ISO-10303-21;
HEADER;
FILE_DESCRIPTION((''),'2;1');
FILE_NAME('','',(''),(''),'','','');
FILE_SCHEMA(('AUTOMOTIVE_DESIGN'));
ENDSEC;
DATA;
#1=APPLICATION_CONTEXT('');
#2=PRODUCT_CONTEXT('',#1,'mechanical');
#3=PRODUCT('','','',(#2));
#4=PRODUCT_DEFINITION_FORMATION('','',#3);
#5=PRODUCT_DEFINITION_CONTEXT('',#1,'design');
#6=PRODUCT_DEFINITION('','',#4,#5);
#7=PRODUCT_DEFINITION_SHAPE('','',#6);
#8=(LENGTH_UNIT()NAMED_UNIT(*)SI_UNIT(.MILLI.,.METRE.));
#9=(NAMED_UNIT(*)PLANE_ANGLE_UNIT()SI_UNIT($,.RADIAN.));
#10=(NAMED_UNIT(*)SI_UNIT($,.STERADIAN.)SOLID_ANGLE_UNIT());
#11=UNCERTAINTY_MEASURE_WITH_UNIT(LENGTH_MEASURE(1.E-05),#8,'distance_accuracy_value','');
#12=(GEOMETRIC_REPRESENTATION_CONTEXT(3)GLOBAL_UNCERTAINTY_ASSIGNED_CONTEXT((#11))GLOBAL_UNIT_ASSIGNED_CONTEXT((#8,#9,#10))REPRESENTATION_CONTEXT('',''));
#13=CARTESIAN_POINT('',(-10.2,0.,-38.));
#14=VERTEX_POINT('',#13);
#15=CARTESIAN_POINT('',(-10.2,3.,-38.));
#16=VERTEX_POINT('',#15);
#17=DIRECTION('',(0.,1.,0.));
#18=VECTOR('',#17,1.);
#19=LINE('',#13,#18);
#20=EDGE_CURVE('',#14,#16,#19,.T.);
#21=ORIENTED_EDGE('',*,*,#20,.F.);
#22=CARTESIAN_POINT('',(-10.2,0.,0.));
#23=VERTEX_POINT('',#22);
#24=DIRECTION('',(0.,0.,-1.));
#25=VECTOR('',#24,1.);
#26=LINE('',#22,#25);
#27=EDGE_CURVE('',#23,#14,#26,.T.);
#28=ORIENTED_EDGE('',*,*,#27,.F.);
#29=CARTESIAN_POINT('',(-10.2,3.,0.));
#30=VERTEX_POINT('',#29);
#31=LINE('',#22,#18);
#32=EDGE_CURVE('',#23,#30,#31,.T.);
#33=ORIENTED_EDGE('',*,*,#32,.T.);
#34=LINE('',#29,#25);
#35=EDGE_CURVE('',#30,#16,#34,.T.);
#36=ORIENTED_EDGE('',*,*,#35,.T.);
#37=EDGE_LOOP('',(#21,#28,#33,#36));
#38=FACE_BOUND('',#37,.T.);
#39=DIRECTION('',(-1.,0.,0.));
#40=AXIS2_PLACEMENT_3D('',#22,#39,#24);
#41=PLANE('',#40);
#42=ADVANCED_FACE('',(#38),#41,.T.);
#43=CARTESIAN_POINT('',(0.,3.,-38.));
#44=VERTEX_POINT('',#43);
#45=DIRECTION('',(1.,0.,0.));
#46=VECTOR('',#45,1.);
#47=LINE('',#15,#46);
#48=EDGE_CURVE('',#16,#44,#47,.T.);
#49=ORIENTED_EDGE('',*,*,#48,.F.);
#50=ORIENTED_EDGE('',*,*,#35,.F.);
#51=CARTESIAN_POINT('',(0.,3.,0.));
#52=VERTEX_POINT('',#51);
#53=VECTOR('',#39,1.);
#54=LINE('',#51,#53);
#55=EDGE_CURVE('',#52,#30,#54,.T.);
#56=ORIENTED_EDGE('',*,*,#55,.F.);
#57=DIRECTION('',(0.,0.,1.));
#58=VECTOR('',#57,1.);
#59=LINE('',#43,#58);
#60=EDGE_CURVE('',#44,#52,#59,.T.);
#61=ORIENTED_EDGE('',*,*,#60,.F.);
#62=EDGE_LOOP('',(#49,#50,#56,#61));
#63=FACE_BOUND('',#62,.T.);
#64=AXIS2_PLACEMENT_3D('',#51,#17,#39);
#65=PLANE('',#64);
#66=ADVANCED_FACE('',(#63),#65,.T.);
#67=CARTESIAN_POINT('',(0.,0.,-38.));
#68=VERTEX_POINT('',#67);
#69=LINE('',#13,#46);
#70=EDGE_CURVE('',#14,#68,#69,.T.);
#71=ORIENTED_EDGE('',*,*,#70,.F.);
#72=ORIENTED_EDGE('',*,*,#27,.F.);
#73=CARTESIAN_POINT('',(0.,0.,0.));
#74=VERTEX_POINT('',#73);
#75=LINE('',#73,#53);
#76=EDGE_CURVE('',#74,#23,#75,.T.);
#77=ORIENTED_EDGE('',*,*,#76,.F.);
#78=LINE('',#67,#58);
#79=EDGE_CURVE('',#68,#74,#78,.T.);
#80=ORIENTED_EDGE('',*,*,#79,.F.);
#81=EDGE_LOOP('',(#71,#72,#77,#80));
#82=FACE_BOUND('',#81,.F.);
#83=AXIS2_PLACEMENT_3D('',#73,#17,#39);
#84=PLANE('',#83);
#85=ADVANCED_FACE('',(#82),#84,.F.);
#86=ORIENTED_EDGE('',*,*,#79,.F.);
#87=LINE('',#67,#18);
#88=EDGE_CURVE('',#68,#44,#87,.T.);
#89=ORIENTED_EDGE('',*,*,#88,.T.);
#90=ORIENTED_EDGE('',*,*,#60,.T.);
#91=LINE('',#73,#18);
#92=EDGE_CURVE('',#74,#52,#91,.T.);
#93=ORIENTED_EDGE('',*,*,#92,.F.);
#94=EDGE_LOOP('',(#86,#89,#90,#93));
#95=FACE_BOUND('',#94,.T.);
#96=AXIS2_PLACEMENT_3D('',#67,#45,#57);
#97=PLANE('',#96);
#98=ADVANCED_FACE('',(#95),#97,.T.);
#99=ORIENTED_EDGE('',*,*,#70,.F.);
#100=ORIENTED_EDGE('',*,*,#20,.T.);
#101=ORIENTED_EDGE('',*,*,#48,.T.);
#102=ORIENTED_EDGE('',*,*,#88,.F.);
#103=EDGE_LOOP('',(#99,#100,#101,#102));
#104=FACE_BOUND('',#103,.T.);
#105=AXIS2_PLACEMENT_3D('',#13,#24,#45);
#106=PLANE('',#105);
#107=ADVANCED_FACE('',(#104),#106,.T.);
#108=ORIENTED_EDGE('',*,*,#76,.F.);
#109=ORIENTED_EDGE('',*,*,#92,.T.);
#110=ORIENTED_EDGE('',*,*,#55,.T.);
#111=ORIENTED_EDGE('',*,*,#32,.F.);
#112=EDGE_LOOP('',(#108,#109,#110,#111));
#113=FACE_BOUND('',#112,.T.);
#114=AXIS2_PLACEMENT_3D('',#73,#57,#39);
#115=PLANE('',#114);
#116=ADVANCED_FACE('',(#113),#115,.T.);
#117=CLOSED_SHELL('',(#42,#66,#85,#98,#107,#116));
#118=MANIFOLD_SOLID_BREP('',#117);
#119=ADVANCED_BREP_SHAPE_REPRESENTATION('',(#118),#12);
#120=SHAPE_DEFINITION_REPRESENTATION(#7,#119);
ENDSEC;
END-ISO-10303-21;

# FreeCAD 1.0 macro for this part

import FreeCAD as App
import Part
import Sketcher
Q = App.Units.Quantity

doc = App.newDocument("Part")
body = doc.addObject("PartDesign::Body", "Body")

sketch1 = body.newObject("Sketcher::SketchObject", "Sketch")
sketch1.AttachmentSupport = (doc.getObject("XZ_Plane"), [""])
sketch1.MapMode = "FlatFace"
sketch1.addGeometry(Part.LineSegment(App.Vector(-10, 0, 0), App.Vector(0, 0, 0)), False)
sketch1.addGeometry(Part.LineSegment(App.Vector(0, 0, 0), App.Vector(0, -38, 0)), False)
sketch1.addGeometry(Part.LineSegment(App.Vector(0, -38, 0), App.Vector(-10, -38, 0)), False)
sketch1.addGeometry(Part.LineSegment(App.Vector(-10, -38, 0), App.Vector(-10, 0, 0)), False)
sketch1.addConstraint(Sketcher.Constraint("Coincident", 0, 2, 1, 1))
sketch1.addConstraint(Sketcher.Constraint("Coincident", 1, 2, 2, 1))
sketch1.addConstraint(Sketcher.Constraint("Coincident", 2, 2, 3, 1))
sketch1.addConstraint(Sketcher.Constraint("Coincident", 3, 2, 0, 1))
sketch1.addConstraint(Sketcher.Constraint("Horizontal", 0))
sketch1.addConstraint(Sketcher.Constraint("Vertical", 1))
sketch1.addConstraint(Sketcher.Constraint("Horizontal", 2))
sketch1.addConstraint(Sketcher.Constraint("Vertical", 3))
sketch1.addConstraint(Sketcher.Constraint("Coincident", 0, 2, -1, 1))
sketch1.addConstraint(Sketcher.Constraint("DistanceY", 1, 2, 1, 1, Q("38 mm")))
sketch1.addConstraint(Sketcher.Constraint("DistanceX", 0, 1, 0, 2, Q("10.2 mm")))
pad1 = body.newObject("PartDesign::Pad", "Pad")
pad1.Profile = sketch1
pad1.Length = 3
pad1.Reversed = True

doc.recompute()
